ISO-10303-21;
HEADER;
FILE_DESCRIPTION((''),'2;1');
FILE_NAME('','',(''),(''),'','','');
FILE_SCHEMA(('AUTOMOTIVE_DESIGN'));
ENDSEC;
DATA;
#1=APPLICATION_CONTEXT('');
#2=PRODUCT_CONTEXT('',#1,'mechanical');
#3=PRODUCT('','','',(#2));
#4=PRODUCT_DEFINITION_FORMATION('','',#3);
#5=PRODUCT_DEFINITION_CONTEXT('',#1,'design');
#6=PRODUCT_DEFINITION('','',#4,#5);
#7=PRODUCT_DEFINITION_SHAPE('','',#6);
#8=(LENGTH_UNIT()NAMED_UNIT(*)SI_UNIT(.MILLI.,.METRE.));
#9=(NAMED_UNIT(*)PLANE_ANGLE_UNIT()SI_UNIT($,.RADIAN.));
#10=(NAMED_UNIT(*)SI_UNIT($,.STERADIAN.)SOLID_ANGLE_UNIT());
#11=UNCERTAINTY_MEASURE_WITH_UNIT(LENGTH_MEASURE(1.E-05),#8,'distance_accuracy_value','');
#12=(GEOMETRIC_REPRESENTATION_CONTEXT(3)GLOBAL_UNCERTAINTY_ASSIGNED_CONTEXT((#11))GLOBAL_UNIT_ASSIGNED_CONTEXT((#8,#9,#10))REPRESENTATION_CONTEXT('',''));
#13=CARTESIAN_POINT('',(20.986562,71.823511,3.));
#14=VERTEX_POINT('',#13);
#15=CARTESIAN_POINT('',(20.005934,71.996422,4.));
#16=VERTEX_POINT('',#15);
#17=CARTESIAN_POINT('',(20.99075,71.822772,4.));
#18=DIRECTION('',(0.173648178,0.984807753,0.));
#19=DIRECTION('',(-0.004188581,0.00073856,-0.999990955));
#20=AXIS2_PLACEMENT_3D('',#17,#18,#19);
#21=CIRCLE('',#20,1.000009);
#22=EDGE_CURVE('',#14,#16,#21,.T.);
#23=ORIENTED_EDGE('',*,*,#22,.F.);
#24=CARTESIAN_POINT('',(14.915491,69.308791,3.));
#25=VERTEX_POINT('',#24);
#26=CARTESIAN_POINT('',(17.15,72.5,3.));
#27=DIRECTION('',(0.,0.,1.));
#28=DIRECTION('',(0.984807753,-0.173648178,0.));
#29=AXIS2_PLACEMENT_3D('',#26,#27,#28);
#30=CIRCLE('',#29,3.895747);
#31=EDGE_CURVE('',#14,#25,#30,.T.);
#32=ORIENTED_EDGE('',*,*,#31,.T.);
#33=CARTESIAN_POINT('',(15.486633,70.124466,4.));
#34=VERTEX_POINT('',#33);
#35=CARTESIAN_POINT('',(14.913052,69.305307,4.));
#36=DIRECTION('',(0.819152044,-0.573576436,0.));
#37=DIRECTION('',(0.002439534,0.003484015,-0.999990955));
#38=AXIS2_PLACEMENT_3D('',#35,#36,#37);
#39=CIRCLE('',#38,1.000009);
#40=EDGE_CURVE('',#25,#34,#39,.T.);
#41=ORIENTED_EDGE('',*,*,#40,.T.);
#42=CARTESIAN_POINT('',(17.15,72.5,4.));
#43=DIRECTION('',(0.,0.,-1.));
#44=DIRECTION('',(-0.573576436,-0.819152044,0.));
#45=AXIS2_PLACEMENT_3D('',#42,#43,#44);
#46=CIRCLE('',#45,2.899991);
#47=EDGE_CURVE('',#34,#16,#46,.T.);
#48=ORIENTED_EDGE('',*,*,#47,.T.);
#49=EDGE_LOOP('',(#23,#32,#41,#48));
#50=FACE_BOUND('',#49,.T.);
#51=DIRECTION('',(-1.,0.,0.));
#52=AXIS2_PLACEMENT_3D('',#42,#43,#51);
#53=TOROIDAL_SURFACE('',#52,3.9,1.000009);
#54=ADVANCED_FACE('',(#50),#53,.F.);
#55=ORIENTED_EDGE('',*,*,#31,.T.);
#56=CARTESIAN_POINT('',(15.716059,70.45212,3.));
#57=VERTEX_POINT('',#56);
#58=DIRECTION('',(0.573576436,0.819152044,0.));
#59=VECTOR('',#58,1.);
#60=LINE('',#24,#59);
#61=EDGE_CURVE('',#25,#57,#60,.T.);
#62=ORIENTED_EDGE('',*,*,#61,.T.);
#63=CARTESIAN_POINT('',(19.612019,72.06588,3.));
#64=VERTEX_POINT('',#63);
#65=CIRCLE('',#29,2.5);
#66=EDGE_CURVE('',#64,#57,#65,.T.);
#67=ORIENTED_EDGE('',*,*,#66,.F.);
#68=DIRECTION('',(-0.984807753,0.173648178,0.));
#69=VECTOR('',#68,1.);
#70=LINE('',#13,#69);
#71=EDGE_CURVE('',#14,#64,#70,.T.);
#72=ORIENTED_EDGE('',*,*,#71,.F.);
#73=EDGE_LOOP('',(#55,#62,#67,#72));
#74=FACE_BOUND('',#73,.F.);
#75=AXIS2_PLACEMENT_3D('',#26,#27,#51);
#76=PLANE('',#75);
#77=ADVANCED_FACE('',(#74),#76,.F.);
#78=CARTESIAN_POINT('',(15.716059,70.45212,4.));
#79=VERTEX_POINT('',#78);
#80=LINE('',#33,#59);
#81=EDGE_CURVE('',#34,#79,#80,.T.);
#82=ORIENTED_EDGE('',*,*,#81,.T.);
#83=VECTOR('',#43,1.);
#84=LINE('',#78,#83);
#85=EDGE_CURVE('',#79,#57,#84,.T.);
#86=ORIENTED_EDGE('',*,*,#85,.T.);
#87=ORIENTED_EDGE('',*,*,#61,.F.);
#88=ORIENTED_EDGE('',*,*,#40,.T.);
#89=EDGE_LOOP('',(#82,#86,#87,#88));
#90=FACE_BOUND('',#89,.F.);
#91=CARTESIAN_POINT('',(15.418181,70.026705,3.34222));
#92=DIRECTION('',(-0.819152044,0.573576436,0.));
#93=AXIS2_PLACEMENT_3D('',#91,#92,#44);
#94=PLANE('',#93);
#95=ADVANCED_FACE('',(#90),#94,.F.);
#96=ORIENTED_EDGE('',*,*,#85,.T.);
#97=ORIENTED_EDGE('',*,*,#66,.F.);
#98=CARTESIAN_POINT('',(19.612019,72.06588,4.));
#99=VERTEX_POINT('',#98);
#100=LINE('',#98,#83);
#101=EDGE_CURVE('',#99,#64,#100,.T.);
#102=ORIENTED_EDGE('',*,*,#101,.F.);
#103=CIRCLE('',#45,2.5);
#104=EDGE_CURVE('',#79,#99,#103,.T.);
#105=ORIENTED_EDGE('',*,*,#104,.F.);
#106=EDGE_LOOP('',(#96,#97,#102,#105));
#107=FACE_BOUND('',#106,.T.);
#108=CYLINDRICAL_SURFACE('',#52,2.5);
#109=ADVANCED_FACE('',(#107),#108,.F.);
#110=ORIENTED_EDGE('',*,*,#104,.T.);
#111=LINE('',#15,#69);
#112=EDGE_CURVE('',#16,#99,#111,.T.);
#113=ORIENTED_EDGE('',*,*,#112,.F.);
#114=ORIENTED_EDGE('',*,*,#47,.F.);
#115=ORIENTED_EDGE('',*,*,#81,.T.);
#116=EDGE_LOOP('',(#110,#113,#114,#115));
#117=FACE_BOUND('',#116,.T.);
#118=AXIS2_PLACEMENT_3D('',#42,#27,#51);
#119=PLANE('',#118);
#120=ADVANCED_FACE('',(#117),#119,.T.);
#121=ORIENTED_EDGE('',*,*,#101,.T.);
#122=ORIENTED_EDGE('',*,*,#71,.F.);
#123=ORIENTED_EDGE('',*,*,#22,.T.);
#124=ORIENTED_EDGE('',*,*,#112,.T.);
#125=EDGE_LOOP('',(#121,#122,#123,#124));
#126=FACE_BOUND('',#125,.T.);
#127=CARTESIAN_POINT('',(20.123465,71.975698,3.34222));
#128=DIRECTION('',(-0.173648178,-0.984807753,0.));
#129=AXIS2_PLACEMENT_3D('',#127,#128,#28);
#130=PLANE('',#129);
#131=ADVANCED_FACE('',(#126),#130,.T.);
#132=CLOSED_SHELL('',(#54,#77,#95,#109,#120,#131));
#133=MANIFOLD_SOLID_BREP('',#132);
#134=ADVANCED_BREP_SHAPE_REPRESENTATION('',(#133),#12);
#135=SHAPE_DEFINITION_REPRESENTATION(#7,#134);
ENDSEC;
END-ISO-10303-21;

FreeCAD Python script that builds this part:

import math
import FreeCAD as App
import Part
import Sketcher

doc = App.newDocument("Part")
body = doc.addObject("PartDesign::Body", "Body")

# Sketch on XZ plane
sketch1 = body.newObject("Sketcher::SketchObject", "Sketch")
sketch1.AttachmentSupport = (doc.getObject("XZ_Plane"), [""])
sketch1.MapMode = "FlatFace"
sketch1.AttachmentOffset = App.Placement(App.Vector(0, 0, -72.5), App.Rotation())
sketch1.addGeometry(Part.ArcOfCircle(Part.Circle(App.Vector(13.25, 4, 0), App.Vector(0, 0, 1), 1.000009), math.radians(-89.756309), math.radians(-0.000011)), False)
sketch1.addGeometry(Part.LineSegment(App.Vector(13.254253, 3, 0), App.Vector(14.65, 3, 0)), False)
sketch1.addGeometry(Part.LineSegment(App.Vector(14.65, 3, 0), App.Vector(14.65, 4, 0)), False)
sketch1.addGeometry(Part.LineSegment(App.Vector(14.65, 4, 0), App.Vector(14.250009, 4, 0)), False)
sketch1.addGeometry(Part.LineSegment(App.Vector(17.15, 3, 0), App.Vector(17.15, 4, 0)), True)  # axis
sketch1.addConstraint(Sketcher.Constraint("Coincident", 0, 1, 1, 1))
sketch1.addConstraint(Sketcher.Constraint("Coincident", 1, 2, 2, 1))
sketch1.addConstraint(Sketcher.Constraint("Coincident", 2, 2, 3, 1))
sketch1.addConstraint(Sketcher.Constraint("Coincident", 3, 2, 0, 2))
sketch1.addConstraint(Sketcher.Constraint("Horizontal", 1))
sketch1.addConstraint(Sketcher.Constraint("Vertical", 2))
sketch1.addConstraint(Sketcher.Constraint("Horizontal", 3))
sketch1.addConstraint(Sketcher.Constraint("Vertical", 4))
sketch1.addConstraint(Sketcher.Constraint("Horizontal", 0, 3, 2, 2))
sketch1.addConstraint(Sketcher.Constraint("Horizontal", 1, 2, 4, 1))
sketch1.addConstraint(Sketcher.Constraint("Horizontal", 3, 2, 4, 2))
sketch1.addConstraint(Sketcher.Constraint("DistanceY", 2, 1, 2, 2, 1.0))
sketch1.addConstraint(Sketcher.Constraint("DistanceY", -1, 1, 0, 3, 4.0))
sketch1.addConstraint(Sketcher.Constraint("DistanceX", 0, 3, 1, 2, 1.4))
sketch1.addConstraint(Sketcher.Constraint("DistanceX", 1, 2, 4, 1, 2.5))
sketch1.addConstraint(Sketcher.Constraint("DistanceX", -1, 1, 0, 3, 13.25))
sketch1.addConstraint(Sketcher.Constraint("Radius", 0, 1.000009))
revolution = body.newObject("PartDesign::Revolution", "Revolution")
revolution.Profile = sketch1
revolution.ReferenceAxis = (sketch1, ["Axis0"])
revolution.Angle = 55
body2 = doc.addObject("PartDesign::Body", "Body001")

# Sketch on XZ plane
sketch2 = body2.newObject("Sketcher::SketchObject", "Sketch001")
sketch2.AttachmentSupport = (doc.getObject("XZ_Plane001"), [""])
sketch2.MapMode = "FlatFace"
sketch2.AttachmentOffset = App.Placement(App.Vector(0, 0, -72.5), App.Rotation())
sketch2.addGeometry(Part.ArcOfCircle(Part.Circle(App.Vector(13.25, 4, 0), App.Vector(0, 0, 1), 1.000009), math.radians(-89.756309), math.radians(-0.000011)), False)
sketch2.addGeometry(Part.LineSegment(App.Vector(13.254253, 3, 0), App.Vector(14.65, 3, 0)), False)
sketch2.addGeometry(Part.LineSegment(App.Vector(14.65, 3, 0), App.Vector(14.65, 4, 0)), False)
sketch2.addGeometry(Part.LineSegment(App.Vector(14.65, 4, 0), App.Vector(14.250009, 4, 0)), False)
sketch2.addGeometry(Part.LineSegment(App.Vector(17.15, 3, 0), App.Vector(17.15, 4, 0)), True)  # axis
sketch2.addConstraint(Sketcher.Constraint("Coincident", 0, 1, 1, 1))
sketch2.addConstraint(Sketcher.Constraint("Coincident", 1, 2, 2, 1))
sketch2.addConstraint(Sketcher.Constraint("Coincident", 2, 2, 3, 1))
sketch2.addConstraint(Sketcher.Constraint("Coincident", 3, 2, 0, 2))
sketch2.addConstraint(Sketcher.Constraint("Horizontal", 1))
sketch2.addConstraint(Sketcher.Constraint("Vertical", 2))
sketch2.addConstraint(Sketcher.Constraint("Horizontal", 3))
sketch2.addConstraint(Sketcher.Constraint("Vertical", 4))
sketch2.addConstraint(Sketcher.Constraint("Horizontal", 0, 3, 2, 2))
sketch2.addConstraint(Sketcher.Constraint("Horizontal", 1, 2, 4, 1))
sketch2.addConstraint(Sketcher.Constraint("Horizontal", 3, 2, 4, 2))
sketch2.addConstraint(Sketcher.Constraint("DistanceY", 2, 1, 2, 2, 1.0))
sketch2.addConstraint(Sketcher.Constraint("DistanceY", -1, 1, 0, 3, 4.0))
sketch2.addConstraint(Sketcher.Constraint("DistanceX", 0, 3, 1, 2, 1.4))
sketch2.addConstraint(Sketcher.Constraint("DistanceX", 1, 2, 4, 1, 2.5))
sketch2.addConstraint(Sketcher.Constraint("DistanceX", -1, 1, 0, 3, 13.25))
sketch2.addConstraint(Sketcher.Constraint("Radius", 0, 1.000009))
revolution2 = body2.newObject("PartDesign::Revolution", "Revolution001")
revolution2.Profile = sketch2
revolution2.ReferenceAxis = (sketch2, ["Axis0"])
revolution2.Angle = 190
revolution2.Reversed = True
doc.recompute()

boolean = body2.newObject("PartDesign::Boolean", "Boolean")
boolean.Type = "Fuse"
boolean.addObjects([body])

doc.recompute()
